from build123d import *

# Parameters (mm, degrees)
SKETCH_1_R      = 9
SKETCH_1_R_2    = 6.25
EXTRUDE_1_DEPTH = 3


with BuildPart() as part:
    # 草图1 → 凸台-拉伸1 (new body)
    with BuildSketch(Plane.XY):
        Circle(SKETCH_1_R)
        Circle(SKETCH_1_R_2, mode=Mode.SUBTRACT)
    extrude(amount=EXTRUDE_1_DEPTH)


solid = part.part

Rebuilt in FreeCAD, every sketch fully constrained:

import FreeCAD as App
import Part
import Sketcher
from FreeCAD import Vector

doc = App.newDocument("Part")
body = doc.addObject("PartDesign::Body", "Body")

# Sketch on XY plane
sketch1 = body.newObject("Sketcher::SketchObject", "Sketch")
sketch1.AttachmentSupport = (doc.getObject("XY_Plane"), [""])
sketch1.MapMode = "FlatFace"
sketch1.addGeometry(Part.Circle(Vector(0, 0, 0), Vector(0, 0, 1), 9), False)
sketch1.addGeometry(Part.Circle(Vector(0, 0, 0), Vector(0, 0, 1), 6), False)
sketch1.addConstraint(Sketcher.Constraint("Coincident", 0, 3, -1, 1))
sketch1.addConstraint(Sketcher.Constraint("Coincident", 1, 3, -1, 1))
sketch1.addConstraint(Sketcher.Constraint("Diameter", 0, 18.0))
sketch1.addConstraint(Sketcher.Constraint("Diameter", 1, 12.5))
pad1 = body.newObject("PartDesign::Pad", "Pad")
pad1.Profile = sketch1
pad1.Length = 3

doc.recompute()
